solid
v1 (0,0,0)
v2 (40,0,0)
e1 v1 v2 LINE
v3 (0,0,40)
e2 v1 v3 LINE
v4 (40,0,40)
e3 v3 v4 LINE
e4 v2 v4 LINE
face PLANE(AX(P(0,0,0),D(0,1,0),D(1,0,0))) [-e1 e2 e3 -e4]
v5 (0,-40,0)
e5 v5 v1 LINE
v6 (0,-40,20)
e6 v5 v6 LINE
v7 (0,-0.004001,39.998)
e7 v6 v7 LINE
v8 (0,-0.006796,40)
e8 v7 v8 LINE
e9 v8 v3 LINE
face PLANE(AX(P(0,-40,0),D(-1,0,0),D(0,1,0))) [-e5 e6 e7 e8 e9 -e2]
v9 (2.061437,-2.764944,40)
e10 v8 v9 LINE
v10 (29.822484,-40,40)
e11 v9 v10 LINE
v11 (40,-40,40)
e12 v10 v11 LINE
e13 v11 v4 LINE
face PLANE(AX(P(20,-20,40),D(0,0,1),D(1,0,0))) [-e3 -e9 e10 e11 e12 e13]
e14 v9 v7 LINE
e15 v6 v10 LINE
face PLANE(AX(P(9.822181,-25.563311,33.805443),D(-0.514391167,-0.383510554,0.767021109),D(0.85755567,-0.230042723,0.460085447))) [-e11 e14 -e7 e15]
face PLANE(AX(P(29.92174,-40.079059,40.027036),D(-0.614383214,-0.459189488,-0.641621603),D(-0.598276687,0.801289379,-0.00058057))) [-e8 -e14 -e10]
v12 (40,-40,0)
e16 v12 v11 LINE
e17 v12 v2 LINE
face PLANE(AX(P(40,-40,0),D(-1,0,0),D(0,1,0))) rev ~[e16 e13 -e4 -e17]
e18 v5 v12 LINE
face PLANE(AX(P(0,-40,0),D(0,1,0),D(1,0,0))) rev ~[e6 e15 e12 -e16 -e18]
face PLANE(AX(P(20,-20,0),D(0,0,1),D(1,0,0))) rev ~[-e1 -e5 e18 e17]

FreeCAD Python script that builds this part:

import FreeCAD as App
import Part
import Sketcher
Q = App.Units.Quantity


def add_polygon(sketch, points):
    """Adds a closed chain of lines whose ends are joined by coincident constraints."""
    first, n = sketch.GeometryCount, len(points)
    for a, b in zip(points, points[1:] + points[:1]):
        sketch.addGeometry(Part.LineSegment(App.Vector(*a, 0), App.Vector(*b, 0)), False)
    for i in range(n):
        sketch.addConstraint(Sketcher.Constraint("Coincident", first + i, 2, first + (i + 1) % n, 1))

doc = App.newDocument("Part")
body = doc.addObject("PartDesign::Body", "Body")

# Sketch on XY plane
sketch1 = doc.addObject("Sketcher::SketchObject", "Sketch")
body.addObject(sketch1)
sketch1.AttachmentSupport = (doc.XY_Plane, [""])
sketch1.MapMode = "FlatFace"
add_polygon(sketch1, [(0, 0), (0, -40), (40, -40), (40, 0)])  # lines 0-3
sketch1.addConstraint(Sketcher.Constraint("Vertical", 0))
sketch1.addConstraint(Sketcher.Constraint("Horizontal", 1))
sketch1.addConstraint(Sketcher.Constraint("Vertical", 2))
sketch1.addConstraint(Sketcher.Constraint("Horizontal", 3))
sketch1.addConstraint(Sketcher.Constraint("Coincident", 3, 2, -1, 1))
sketch1.addConstraint(Sketcher.Constraint("Equal", 3, 0))
sketch1.addConstraint(Sketcher.Constraint("DistanceX", 1, 1, 1, 2, Q("40 mm")))
pad1 = doc.addObject("PartDesign::Pad", "Pad")
body.addObject(pad1)
pad1.Profile = sketch1
pad1.Length = 40

# Sketch on an angled plane
sketch2 = doc.addObject("Sketcher::SketchObject", "Sketch001")
body.addObject(sketch2)
sketch2.Placement = App.Placement(App.Vector(-15.781955, -11.766428, 23.532855), App.Rotation(App.Vector(0.85755567, -0.230042723, 0.460085447), App.Vector(0, 0.894427191, 0.447213595), App.Vector(-0.514391167, -0.383510554, 0.767021109), "ZXY"))
add_polygon(sketch2, [(18.341336, -26.934398), (53.295311, -17.947165), (18.40128, 17.886266)])  # lines 0-2
sketch2.addConstraint(Sketcher.Constraint("DistanceY", 2, 2, -1, 1, Q("26.934398 mm")))
sketch2.addConstraint(Sketcher.Constraint("Distance", 1, Q("50.016279 mm")))
sketch2.addConstraint(Sketcher.Constraint("DistanceX", -1, 1, 0, 2, Q("53.295311 mm")))
sketch2.addConstraint(Sketcher.Constraint("DistanceX", -1, 1, 1, 2, Q("18.40128 mm")))
sketch2.addConstraint(Sketcher.Constraint("Distance", 0, Q("36.090867 mm")))
sketch2.addConstraint(Sketcher.Constraint("Distance", 2, Q("44.820705 mm")))
pocket1 = doc.addObject("PartDesign::Pocket", "Pocket")
body.addObject(pocket1)
pocket1.Profile = sketch2
pocket1.Length = 25
pocket1.Reversed = True

doc.recompute()
